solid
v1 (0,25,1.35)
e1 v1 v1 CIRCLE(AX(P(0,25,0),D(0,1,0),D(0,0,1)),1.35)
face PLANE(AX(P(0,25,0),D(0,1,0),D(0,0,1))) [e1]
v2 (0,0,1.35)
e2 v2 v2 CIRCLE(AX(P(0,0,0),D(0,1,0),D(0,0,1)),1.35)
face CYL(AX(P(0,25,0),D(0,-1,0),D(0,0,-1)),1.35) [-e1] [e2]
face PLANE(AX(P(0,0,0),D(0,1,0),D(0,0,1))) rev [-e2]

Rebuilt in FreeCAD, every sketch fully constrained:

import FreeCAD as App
import Part
import Sketcher

V = App.Vector

doc = App.newDocument("Part")
body = doc.addObject("PartDesign::Body", "Body")

sketch1 = body.newObject("Sketcher::SketchObject", "Sketch")
sketch1.AttachmentSupport = (doc.getObject("XZ_Plane"), [""])
sketch1.MapMode = "FlatFace"
sketch1.addGeometry(Part.Circle(V(0, 0, 0), V(0, 0, 1), 1.4), False)
sketch1.addConstraint(Sketcher.Constraint("Coincident", 0, 3, -1, 1))
sketch1.addConstraint(Sketcher.Constraint("Diameter", 0, 2.7))
pad1 = body.newObject("PartDesign::Pad", "Pad")
pad1.Profile = sketch1
pad1.Length = 25
pad1.Reversed = True

doc.recompute()
